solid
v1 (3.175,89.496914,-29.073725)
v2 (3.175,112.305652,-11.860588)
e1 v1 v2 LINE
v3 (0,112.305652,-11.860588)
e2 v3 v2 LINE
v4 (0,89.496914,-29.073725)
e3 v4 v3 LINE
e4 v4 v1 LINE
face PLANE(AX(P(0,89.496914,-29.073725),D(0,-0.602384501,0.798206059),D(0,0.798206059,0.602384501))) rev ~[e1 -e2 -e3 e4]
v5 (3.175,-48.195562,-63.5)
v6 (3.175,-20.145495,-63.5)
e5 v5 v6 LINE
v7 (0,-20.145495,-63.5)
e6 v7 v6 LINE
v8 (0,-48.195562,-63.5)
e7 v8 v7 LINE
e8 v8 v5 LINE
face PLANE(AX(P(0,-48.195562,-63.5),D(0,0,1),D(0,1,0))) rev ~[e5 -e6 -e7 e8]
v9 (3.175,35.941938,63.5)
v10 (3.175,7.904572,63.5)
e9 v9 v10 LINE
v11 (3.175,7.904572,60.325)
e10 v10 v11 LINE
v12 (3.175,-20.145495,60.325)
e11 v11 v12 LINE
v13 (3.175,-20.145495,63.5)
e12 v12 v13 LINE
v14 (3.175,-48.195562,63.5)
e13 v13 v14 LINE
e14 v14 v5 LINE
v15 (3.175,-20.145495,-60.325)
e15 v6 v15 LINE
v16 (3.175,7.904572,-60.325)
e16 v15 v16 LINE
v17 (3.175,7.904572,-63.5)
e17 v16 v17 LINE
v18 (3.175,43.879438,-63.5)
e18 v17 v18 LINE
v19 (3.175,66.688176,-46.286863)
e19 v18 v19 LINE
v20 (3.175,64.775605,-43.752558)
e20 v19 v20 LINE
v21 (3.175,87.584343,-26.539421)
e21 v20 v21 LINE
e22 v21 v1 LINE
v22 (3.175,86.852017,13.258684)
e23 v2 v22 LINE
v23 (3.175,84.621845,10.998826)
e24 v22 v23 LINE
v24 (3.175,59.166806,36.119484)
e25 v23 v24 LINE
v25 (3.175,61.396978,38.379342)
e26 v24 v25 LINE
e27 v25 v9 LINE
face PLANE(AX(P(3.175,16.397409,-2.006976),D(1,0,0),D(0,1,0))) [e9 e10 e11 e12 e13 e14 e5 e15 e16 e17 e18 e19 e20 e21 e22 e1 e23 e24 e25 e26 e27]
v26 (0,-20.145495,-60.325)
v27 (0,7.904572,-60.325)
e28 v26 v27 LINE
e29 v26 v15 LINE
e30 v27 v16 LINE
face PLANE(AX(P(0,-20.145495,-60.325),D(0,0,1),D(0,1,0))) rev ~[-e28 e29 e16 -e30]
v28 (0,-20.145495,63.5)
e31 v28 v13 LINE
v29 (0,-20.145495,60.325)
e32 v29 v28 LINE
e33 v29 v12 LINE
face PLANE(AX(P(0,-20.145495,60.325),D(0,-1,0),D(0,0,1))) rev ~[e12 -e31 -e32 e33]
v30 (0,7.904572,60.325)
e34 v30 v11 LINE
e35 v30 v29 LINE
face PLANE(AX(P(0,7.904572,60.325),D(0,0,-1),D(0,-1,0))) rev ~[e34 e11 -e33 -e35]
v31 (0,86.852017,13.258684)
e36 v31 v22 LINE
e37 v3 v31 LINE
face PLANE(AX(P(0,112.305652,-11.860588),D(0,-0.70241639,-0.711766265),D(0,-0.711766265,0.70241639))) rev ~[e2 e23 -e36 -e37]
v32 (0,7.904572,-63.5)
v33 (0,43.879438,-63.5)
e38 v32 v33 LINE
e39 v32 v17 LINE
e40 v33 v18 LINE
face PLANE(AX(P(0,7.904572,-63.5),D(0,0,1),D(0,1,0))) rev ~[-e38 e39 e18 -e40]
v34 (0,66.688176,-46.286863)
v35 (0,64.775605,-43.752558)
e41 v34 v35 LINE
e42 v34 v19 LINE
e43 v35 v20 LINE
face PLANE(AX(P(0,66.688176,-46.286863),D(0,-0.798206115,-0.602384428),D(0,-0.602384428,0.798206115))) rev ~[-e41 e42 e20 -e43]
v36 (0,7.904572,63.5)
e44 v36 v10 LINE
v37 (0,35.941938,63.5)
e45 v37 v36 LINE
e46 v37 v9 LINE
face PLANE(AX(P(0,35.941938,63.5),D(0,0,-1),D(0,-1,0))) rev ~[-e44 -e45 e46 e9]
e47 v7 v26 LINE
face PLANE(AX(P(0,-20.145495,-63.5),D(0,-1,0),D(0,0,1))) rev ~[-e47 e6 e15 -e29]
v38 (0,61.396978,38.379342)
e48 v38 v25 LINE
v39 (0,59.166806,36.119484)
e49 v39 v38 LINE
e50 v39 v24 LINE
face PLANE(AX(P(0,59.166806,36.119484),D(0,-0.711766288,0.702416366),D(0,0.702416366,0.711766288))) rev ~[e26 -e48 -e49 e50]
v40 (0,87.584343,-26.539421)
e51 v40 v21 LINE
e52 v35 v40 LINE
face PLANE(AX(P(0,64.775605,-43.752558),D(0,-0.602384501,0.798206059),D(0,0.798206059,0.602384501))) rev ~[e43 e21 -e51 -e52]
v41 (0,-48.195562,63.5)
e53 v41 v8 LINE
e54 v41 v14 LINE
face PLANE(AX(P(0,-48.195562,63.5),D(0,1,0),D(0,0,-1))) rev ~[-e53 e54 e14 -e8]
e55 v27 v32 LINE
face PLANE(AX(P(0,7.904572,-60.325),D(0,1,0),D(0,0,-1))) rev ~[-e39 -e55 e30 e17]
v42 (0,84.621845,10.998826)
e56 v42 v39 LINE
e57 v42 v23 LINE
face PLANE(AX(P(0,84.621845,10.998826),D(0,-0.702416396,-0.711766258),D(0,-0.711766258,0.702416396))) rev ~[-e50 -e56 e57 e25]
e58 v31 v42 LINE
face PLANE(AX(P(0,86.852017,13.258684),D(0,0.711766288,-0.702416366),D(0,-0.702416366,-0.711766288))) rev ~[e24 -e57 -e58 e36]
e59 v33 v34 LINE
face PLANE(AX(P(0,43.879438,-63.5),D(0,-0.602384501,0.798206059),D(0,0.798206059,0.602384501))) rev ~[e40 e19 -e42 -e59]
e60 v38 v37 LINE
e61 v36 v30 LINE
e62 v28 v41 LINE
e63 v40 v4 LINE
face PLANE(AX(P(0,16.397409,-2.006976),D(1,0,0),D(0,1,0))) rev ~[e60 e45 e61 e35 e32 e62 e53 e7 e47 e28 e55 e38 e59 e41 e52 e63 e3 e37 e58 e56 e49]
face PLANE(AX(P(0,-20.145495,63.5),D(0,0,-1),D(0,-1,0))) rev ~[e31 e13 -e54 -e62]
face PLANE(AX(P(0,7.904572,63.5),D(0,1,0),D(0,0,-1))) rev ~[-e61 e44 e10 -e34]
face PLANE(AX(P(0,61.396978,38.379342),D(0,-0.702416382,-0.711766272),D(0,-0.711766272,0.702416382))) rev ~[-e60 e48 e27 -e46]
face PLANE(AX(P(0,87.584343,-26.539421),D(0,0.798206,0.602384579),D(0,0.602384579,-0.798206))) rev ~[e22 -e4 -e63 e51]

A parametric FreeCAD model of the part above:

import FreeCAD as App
import Part
import Sketcher
from FreeCAD import Vector
Q = App.Units.Quantity

doc = App.newDocument("Part")
body = doc.addObject("PartDesign::Body", "Body")

# Sketch on YZ plane
sketch1 = doc.addObject("Sketcher::SketchObject", "Sketch")
body.addObject(sketch1)
sketch1.AttachmentSupport = (doc.YZ_Plane, [""])
sketch1.MapMode = "FlatFace"
sketch1.addGeometry([
    Part.LineSegment(Vector(-48.2, -63.5, 0), Vector(-20.1, -63.5, 0)),  # 0
    Part.LineSegment(Vector(-20.1, -63.5, 0), Vector(-20.1, -60.3, 0)),  # 1
    Part.LineSegment(Vector(-20.1, -60.3, 0), Vector(7.9, -60.3, 0)),  # 2
    Part.LineSegment(Vector(7.9, -60.3, 0), Vector(7.9, -63.5, 0)),  # 3
    Part.LineSegment(Vector(7.9, -63.5, 0), Vector(43.9, -63.5, 0)),  # 4
    Part.LineSegment(Vector(43.9, -63.5, 0), Vector(66.7, -46.3, 0)),  # 5
    Part.LineSegment(Vector(66.7, -46.3, 0), Vector(64.8, -43.8, 0)),  # 6
    Part.LineSegment(Vector(64.8, -43.8, 0), Vector(87.6, -26.5, 0)),  # 7
    Part.LineSegment(Vector(87.6, -26.5, 0), Vector(89.5, -29.1, 0)),  # 8
    Part.LineSegment(Vector(89.5, -29.1, 0), Vector(112.3, -11.9, 0)),  # 9
    Part.LineSegment(Vector(112.3, -11.9, 0), Vector(86.9, 13.3, 0)),  # 10
    Part.LineSegment(Vector(86.9, 13.3, 0), Vector(84.6, 11, 0)),  # 11
    Part.LineSegment(Vector(84.6, 11, 0), Vector(59.2, 36.1, 0)),  # 12
    Part.LineSegment(Vector(59.2, 36.1, 0), Vector(61.4, 38.4, 0)),  # 13
    Part.LineSegment(Vector(61.4, 38.4, 0), Vector(35.9, 63.5, 0)),  # 14
    Part.LineSegment(Vector(35.9, 63.5, 0), Vector(7.9, 63.5, 0)),  # 15
    Part.LineSegment(Vector(7.9, 63.5, 0), Vector(7.9, 60.3, 0)),  # 16
    Part.LineSegment(Vector(7.9, 60.3, 0), Vector(-20.1, 60.3, 0)),  # 17
    Part.LineSegment(Vector(-20.1, 60.3, 0), Vector(-20.1, 63.5, 0)),  # 18
    Part.LineSegment(Vector(-20.1, 63.5, 0), Vector(-48.2, 63.5, 0)),  # 19
    Part.LineSegment(Vector(-48.2, 63.5, 0), Vector(-48.2, -63.5, 0)),  # 20
], False)
sketch1.addConstraint([
    Sketcher.Constraint("Coincident", 0, 2, 1, 1),
    Sketcher.Constraint("Coincident", 1, 2, 2, 1),
    Sketcher.Constraint("Coincident", 2, 2, 3, 1),
    Sketcher.Constraint("Coincident", 3, 2, 4, 1),
    Sketcher.Constraint("Coincident", 4, 2, 5, 1),
    Sketcher.Constraint("Coincident", 5, 2, 6, 1),
    Sketcher.Constraint("Coincident", 6, 2, 7, 1),
    Sketcher.Constraint("Coincident", 7, 2, 8, 1),
    Sketcher.Constraint("Coincident", 8, 2, 9, 1),
    Sketcher.Constraint("Coincident", 9, 2, 10, 1),
    Sketcher.Constraint("Coincident", 10, 2, 11, 1),
    Sketcher.Constraint("Coincident", 11, 2, 12, 1),
    Sketcher.Constraint("Coincident", 12, 2, 13, 1),
    Sketcher.Constraint("Coincident", 13, 2, 14, 1),
    Sketcher.Constraint("Coincident", 14, 2, 15, 1),
    Sketcher.Constraint("Coincident", 15, 2, 16, 1),
    Sketcher.Constraint("Coincident", 16, 2, 17, 1),
    Sketcher.Constraint("Coincident", 17, 2, 18, 1),
    Sketcher.Constraint("Coincident", 18, 2, 19, 1),
    Sketcher.Constraint("Coincident", 19, 2, 20, 1),
    Sketcher.Constraint("Coincident", 20, 2, 0, 1),
    Sketcher.Constraint("Horizontal", 0),
    Sketcher.Constraint("Vertical", 1),
    Sketcher.Constraint("Horizontal", 2),
    Sketcher.Constraint("Vertical", 3),
    Sketcher.Constraint("Horizontal", 4),
    Sketcher.Constraint("Horizontal", 15),
    Sketcher.Constraint("Vertical", 16),
    Sketcher.Constraint("Horizontal", 17),
    Sketcher.Constraint("Vertical", 18),
    Sketcher.Constraint("Horizontal", 19),
    Sketcher.Constraint("Vertical", 20),
    Sketcher.Constraint("Symmetric", 3, 2, 15, 2, -1),
    Sketcher.Constraint("Symmetric", 1, 2, 17, 2, -1),
    Sketcher.Constraint("Perpendicular", 5, 6),
    Sketcher.Constraint("Perpendicular", 6, 7),
    Sketcher.Constraint("Perpendicular", 7, 8),
    Sketcher.Constraint("Perpendicular", 8, 9),
    Sketcher.Constraint("Perpendicular", 10, 11),
    Sketcher.Constraint("Perpendicular", 11, 12),
    Sketcher.Constraint("Perpendicular", 12, 13),
    Sketcher.Constraint("Perpendicular", 13, 14),
    Sketcher.Constraint("Horizontal", 0, 2, 3, 2),
    Sketcher.Constraint("Horizontal", 15, 2, 18, 2),
    Sketcher.Constraint("Equal", 0, 2),
    Sketcher.Constraint("Equal", 5, 7),
    Sketcher.Constraint("Equal", 6, 8),
    Sketcher.Constraint("Equal", 7, 9),
    Sketcher.Constraint("Equal", 8, 11),
    Sketcher.Constraint("Equal", 11, 13),
    Sketcher.Constraint("Equal", 12, 14),
    Sketcher.Constraint("DistanceY", 20, 2, 20, 1, Q("5 in")),
    Sketcher.Constraint("DistanceY", 1, 1, 1, 2, Q("0.125 in")),
    Sketcher.Constraint("Distance", 5, Q("1.125 in")),
    Sketcher.Constraint("Distance", 6, Q("0.125 in")),
    Sketcher.Constraint("Distance", 12, Q("1.408 in")),
    Sketcher.Constraint("DistanceX", 19, 2, 14, 2, Q("3.3125 in")),
    Sketcher.Constraint("DistanceX", 20, 2, 4, 2, Q("3.625 in")),
    Sketcher.Constraint("DistanceX", 1, 2, 6, 2, 84.9211),
    Sketcher.Constraint("DistanceX", 11, 2, 7, 2, 2.962498),
    Sketcher.Constraint("DistanceX", -1, 1, 9, 2, 112.305652),
])
pad1 = doc.addObject("PartDesign::Pad", "Pad")
body.addObject(pad1)
pad1.Profile = sketch1
pad1.Length = Q("0.125 in")

doc.recompute()
